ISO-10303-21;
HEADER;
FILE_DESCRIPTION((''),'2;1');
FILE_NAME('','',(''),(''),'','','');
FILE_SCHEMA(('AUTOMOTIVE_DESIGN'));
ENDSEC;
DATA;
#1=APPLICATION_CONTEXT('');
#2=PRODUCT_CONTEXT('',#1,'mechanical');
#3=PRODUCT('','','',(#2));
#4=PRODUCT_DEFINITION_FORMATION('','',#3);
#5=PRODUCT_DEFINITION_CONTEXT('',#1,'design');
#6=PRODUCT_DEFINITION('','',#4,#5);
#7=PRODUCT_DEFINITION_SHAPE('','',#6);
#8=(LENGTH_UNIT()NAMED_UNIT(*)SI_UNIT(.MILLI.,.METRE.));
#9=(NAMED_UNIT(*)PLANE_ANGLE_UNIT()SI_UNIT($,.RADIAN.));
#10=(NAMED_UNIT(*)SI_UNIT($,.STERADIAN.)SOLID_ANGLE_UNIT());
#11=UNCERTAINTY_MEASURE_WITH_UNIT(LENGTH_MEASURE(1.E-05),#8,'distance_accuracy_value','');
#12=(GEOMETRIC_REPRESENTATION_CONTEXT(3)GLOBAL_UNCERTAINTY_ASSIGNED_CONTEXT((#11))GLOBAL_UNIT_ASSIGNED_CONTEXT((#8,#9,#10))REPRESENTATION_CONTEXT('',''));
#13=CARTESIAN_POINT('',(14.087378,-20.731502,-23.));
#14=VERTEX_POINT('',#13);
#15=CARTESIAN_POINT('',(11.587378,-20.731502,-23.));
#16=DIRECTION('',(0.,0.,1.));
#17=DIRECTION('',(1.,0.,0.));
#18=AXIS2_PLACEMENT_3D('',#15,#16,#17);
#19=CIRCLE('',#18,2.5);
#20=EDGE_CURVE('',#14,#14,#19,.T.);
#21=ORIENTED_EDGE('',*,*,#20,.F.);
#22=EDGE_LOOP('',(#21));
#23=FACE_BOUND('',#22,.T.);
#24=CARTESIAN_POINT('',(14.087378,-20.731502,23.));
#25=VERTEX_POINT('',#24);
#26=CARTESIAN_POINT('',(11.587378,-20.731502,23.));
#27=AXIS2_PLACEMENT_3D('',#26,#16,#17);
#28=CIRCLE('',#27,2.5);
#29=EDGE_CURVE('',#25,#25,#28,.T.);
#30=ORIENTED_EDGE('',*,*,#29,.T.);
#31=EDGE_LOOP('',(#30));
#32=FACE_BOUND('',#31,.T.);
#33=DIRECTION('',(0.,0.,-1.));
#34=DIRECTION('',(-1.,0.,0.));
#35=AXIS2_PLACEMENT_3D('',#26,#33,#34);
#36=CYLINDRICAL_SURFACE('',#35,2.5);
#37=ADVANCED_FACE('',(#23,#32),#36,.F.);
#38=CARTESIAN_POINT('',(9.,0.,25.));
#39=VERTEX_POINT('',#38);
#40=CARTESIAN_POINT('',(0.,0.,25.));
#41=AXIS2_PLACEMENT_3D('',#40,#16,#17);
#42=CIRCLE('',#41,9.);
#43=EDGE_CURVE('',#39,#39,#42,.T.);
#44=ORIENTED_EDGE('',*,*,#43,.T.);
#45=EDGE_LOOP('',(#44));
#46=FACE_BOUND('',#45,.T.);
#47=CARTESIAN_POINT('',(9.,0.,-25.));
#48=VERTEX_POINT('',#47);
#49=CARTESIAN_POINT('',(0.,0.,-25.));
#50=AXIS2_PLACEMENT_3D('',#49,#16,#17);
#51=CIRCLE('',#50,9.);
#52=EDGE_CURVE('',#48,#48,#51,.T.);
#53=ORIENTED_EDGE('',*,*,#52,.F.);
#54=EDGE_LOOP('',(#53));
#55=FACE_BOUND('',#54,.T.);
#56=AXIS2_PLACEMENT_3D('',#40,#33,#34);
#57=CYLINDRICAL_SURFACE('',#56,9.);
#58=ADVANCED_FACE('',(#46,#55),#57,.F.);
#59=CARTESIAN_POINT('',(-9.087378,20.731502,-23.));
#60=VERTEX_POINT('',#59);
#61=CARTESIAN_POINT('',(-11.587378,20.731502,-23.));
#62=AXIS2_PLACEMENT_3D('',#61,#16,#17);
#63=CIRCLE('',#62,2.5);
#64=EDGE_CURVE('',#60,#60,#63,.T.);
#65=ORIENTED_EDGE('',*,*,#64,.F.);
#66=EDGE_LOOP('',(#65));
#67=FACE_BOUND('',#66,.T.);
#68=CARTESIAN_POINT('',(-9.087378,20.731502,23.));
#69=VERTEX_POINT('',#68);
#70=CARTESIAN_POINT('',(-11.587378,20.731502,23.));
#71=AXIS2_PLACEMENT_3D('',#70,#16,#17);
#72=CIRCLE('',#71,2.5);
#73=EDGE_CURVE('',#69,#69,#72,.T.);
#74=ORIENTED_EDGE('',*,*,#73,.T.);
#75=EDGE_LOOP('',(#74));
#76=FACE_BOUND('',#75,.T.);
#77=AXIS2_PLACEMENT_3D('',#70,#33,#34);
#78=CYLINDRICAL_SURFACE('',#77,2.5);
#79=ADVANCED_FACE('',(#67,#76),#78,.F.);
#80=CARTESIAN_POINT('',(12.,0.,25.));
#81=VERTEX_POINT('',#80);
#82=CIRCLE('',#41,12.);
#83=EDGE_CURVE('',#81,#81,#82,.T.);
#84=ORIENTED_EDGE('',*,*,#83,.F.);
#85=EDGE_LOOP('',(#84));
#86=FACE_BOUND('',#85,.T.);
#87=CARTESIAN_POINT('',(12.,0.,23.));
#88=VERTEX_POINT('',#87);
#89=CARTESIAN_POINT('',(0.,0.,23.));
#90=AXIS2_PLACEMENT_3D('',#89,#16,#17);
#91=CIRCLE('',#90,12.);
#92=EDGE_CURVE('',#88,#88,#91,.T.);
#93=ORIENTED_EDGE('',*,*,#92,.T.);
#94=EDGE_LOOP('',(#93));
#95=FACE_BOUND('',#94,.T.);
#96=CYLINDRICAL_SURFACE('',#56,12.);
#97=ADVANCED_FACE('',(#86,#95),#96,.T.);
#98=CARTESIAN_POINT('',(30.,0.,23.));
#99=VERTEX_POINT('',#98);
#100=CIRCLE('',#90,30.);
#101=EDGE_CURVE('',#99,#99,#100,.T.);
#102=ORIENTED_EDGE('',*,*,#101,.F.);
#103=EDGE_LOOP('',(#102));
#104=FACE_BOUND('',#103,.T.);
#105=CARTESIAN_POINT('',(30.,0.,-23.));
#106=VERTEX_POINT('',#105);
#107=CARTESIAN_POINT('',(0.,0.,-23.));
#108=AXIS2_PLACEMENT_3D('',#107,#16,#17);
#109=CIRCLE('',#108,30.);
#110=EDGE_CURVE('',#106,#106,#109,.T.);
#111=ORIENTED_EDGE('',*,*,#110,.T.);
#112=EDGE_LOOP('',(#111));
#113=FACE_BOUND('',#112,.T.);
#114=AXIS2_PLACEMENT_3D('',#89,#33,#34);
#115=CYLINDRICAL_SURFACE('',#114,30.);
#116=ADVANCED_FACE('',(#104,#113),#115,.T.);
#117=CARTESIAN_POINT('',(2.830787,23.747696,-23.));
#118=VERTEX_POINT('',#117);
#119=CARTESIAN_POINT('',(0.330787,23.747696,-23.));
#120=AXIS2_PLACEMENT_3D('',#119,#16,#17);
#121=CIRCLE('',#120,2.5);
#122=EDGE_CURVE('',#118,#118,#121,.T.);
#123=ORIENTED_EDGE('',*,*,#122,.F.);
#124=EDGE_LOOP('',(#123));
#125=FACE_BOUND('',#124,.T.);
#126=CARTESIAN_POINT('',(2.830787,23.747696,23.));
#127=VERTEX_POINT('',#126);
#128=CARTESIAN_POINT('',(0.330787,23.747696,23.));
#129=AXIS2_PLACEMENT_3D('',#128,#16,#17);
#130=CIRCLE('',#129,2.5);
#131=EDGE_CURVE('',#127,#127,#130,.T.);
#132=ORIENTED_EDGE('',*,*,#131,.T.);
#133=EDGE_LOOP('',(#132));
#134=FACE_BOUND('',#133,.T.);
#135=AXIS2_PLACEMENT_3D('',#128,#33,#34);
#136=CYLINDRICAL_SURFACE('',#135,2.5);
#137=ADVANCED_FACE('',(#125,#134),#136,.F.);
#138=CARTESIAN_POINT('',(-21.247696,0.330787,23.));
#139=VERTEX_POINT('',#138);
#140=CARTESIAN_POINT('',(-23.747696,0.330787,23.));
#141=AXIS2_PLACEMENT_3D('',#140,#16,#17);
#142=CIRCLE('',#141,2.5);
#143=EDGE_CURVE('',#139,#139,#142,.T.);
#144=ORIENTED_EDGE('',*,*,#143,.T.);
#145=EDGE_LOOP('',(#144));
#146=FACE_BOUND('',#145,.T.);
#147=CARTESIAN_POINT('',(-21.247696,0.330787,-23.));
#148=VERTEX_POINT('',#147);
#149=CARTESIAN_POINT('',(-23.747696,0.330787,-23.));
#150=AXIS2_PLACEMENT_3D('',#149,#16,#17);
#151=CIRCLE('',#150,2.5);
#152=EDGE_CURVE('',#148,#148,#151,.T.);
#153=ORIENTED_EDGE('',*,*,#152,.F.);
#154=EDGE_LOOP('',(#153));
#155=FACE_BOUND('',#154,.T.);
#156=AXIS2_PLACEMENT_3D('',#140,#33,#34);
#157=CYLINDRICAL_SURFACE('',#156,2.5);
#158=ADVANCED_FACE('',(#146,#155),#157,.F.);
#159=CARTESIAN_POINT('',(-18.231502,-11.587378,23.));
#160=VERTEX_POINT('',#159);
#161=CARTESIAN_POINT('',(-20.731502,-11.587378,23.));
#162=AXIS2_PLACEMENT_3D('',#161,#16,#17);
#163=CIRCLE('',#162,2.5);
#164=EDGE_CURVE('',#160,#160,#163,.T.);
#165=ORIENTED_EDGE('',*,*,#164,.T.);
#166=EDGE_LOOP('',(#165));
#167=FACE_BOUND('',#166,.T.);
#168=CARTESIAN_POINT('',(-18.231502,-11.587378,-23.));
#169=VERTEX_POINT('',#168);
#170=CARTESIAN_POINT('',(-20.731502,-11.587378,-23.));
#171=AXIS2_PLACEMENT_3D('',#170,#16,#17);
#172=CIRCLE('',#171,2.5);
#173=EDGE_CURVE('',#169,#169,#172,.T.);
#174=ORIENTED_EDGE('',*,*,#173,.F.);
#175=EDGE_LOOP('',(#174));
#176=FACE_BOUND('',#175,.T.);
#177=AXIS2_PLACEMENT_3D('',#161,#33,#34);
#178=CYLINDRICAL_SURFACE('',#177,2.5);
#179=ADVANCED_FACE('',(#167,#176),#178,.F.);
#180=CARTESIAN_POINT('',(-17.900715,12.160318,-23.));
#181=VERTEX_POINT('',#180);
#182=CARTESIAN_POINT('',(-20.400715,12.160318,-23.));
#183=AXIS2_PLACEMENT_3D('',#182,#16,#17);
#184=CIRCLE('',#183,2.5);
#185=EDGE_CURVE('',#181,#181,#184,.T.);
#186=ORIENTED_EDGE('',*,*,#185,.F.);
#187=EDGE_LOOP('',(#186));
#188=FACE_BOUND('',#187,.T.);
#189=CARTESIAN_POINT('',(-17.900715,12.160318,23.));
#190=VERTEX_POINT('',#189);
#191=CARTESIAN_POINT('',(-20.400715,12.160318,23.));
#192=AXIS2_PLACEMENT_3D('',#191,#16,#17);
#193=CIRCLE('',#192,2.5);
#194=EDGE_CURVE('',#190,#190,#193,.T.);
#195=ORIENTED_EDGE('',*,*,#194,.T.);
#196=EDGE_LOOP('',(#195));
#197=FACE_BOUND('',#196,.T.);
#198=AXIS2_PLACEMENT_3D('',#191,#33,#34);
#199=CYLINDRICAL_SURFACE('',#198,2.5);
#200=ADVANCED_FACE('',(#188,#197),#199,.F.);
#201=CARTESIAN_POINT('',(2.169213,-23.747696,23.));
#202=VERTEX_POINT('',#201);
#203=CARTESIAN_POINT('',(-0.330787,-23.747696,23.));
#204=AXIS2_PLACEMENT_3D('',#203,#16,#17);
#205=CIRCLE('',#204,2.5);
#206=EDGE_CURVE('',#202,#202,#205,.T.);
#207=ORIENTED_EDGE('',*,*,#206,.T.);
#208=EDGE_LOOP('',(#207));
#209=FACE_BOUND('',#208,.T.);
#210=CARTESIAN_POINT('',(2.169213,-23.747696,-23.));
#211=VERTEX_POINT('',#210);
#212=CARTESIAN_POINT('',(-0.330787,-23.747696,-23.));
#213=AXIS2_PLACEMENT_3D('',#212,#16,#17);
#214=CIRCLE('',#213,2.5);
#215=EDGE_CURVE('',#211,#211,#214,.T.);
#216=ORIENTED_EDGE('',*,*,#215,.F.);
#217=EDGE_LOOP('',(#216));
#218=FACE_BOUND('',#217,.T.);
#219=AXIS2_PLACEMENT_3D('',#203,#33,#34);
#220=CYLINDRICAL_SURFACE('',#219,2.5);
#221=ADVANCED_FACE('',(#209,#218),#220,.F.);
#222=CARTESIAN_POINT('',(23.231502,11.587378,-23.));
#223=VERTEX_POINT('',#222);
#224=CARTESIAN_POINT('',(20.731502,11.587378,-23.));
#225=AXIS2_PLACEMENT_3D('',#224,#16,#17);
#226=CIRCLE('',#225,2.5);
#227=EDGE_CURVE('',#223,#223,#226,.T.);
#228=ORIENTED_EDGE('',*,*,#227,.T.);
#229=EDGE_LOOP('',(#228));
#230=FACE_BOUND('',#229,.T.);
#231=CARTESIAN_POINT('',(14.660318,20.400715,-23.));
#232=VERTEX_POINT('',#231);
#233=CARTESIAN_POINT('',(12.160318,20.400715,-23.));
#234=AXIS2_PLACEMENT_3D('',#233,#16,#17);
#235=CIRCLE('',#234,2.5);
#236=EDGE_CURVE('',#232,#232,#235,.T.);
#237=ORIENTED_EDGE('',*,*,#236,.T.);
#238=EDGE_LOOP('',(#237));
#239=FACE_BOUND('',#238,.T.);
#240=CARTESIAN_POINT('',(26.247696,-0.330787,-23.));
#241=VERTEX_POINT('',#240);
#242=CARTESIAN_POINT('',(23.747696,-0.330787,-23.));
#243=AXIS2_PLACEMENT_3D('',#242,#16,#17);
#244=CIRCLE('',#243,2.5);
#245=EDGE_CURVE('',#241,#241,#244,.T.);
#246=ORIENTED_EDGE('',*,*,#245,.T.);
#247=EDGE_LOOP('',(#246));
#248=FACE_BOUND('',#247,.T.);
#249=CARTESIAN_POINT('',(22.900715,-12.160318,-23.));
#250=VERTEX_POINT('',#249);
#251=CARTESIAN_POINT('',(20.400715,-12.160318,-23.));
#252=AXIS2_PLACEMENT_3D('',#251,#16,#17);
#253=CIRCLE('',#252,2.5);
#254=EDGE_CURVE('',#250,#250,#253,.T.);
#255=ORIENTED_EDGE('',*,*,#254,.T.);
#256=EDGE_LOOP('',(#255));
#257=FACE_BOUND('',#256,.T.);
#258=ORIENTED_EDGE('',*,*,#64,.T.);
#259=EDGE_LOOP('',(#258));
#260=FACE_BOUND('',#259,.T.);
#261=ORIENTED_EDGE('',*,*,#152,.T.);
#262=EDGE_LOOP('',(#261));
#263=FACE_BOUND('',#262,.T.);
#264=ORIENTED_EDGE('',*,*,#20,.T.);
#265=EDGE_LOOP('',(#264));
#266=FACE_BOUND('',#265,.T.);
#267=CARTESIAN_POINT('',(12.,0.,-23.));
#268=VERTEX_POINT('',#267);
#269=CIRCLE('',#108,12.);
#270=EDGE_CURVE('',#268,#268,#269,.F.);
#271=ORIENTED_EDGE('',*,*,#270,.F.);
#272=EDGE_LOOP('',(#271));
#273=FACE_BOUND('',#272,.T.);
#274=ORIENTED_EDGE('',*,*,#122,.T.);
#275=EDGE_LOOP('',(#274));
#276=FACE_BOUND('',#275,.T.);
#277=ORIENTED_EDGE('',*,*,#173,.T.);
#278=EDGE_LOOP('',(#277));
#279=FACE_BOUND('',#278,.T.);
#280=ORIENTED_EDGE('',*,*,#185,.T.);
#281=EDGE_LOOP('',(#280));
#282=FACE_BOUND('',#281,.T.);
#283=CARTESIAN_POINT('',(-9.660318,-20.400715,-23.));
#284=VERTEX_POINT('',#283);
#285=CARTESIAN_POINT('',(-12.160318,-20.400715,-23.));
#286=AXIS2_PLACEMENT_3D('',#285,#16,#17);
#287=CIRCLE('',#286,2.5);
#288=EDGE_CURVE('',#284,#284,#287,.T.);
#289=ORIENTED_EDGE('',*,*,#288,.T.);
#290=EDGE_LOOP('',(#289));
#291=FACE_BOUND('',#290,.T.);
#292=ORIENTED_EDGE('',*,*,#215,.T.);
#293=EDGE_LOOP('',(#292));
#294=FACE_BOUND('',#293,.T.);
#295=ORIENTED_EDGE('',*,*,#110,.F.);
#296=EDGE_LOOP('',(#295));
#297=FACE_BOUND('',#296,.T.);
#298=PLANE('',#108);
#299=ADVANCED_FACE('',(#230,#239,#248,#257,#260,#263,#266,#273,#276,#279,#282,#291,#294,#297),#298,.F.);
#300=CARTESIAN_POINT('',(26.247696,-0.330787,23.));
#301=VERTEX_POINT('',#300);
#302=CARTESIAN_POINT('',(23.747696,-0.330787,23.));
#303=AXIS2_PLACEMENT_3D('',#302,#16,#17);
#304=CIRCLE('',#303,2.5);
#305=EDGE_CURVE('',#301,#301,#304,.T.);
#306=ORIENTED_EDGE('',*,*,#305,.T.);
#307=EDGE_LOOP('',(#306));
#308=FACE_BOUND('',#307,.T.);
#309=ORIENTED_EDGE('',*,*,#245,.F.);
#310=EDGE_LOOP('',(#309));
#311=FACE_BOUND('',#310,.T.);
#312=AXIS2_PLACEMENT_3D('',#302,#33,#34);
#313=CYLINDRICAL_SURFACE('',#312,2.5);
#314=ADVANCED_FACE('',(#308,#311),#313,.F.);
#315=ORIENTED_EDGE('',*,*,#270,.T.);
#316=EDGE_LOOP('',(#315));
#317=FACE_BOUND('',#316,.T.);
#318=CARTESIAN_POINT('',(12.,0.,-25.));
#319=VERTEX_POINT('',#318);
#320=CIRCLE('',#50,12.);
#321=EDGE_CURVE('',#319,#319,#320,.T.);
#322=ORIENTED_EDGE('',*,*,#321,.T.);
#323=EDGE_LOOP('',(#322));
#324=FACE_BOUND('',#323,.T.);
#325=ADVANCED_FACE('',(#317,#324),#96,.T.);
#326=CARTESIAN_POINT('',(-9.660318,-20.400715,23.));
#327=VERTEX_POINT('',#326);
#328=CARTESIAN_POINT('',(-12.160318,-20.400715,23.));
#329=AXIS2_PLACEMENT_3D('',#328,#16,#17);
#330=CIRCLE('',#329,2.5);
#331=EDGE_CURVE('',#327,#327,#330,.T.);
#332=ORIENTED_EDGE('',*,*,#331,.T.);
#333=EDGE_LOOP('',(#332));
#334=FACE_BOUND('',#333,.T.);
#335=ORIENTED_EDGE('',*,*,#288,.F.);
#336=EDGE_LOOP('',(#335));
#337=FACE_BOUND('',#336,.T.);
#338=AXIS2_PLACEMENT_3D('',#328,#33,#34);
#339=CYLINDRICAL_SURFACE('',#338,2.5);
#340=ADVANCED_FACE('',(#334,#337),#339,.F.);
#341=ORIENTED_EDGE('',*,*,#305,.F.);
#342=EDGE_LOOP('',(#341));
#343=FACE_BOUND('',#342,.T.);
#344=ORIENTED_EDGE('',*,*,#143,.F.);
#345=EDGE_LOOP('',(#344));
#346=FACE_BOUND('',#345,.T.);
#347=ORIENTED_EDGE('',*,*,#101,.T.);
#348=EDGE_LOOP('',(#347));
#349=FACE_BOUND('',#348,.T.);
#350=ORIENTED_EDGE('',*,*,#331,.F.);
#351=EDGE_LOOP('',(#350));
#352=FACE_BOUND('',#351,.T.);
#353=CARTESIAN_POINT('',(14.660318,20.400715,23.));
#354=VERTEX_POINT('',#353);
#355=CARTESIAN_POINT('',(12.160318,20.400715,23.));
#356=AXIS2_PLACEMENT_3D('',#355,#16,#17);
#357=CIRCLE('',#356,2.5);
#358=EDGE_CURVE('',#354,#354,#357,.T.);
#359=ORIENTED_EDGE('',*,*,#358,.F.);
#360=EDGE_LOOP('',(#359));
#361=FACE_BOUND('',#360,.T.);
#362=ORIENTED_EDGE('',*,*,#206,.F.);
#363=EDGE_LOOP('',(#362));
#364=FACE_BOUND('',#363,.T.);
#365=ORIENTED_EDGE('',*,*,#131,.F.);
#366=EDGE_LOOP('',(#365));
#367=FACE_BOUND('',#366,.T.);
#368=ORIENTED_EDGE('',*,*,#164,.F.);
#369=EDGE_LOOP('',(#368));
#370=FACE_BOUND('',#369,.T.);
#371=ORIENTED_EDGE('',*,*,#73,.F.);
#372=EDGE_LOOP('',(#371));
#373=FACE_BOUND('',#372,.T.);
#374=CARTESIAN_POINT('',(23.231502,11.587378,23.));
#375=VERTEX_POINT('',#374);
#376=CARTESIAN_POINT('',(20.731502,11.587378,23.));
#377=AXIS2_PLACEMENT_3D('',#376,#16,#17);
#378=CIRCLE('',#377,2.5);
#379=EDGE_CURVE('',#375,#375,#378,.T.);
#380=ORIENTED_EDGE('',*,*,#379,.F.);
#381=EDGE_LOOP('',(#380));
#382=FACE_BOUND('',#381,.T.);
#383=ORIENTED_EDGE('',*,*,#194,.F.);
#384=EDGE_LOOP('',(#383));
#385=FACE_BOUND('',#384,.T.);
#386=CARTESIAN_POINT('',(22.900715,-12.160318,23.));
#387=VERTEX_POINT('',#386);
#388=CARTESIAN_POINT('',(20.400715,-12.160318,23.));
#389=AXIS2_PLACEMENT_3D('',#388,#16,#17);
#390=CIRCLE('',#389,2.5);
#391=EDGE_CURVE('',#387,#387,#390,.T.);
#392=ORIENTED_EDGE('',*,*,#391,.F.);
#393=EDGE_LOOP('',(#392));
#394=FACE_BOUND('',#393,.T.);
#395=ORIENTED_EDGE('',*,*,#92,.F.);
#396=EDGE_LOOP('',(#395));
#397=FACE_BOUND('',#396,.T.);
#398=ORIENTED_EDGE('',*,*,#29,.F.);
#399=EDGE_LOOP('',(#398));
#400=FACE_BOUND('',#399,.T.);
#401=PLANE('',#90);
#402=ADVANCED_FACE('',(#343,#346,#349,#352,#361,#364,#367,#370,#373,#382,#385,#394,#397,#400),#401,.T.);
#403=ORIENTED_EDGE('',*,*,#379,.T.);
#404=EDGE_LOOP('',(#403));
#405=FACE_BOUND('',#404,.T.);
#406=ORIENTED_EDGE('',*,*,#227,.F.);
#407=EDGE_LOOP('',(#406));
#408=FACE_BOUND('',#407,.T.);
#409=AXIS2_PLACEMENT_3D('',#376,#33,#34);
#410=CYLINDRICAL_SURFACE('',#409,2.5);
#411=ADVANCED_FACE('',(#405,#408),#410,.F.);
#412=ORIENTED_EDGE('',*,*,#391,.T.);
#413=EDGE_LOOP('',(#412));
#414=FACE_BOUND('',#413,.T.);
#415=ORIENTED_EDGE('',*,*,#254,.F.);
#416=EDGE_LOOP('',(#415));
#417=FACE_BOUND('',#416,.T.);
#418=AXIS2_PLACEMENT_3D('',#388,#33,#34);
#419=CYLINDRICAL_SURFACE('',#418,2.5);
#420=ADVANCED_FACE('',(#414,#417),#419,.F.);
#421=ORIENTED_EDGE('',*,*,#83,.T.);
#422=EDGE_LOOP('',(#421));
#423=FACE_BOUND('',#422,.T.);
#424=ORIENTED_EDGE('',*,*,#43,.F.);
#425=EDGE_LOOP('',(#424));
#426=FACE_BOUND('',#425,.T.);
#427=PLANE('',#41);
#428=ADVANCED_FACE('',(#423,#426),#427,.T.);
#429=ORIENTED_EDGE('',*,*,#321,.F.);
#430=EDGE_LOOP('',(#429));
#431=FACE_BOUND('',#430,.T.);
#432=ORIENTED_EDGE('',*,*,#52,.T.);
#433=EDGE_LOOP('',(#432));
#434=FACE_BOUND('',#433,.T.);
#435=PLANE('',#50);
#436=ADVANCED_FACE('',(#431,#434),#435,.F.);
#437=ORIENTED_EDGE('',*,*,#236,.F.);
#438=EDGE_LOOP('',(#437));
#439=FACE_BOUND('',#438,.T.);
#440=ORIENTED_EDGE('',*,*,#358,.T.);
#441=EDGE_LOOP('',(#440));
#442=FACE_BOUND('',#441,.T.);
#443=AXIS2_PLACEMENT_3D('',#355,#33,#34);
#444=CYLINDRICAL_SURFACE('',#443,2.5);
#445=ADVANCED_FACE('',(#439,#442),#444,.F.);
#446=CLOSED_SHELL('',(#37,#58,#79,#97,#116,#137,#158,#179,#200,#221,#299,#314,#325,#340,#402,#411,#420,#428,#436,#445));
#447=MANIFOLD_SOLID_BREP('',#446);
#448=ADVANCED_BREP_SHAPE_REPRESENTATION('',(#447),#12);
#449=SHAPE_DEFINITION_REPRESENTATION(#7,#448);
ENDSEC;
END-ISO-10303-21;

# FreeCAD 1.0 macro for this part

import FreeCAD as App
import Part
import Sketcher
Q = App.Units.Quantity

doc = App.newDocument("Part")
body = doc.addObject("PartDesign::Body", "Body")

# Sketch on XY plane
sketch1 = body.newObject("Sketcher::SketchObject", "Sketch")
sketch1.AttachmentSupport = (doc.getObject("XY_Plane"), [""])
sketch1.MapMode = "FlatFace"
sketch1.addGeometry([
    Part.Circle(App.Vector(0, 0, 0), App.Vector(0, 0, 1), 30),  # 0
    Part.Circle(App.Vector(-12.160318, -20.400715, 0), App.Vector(0, 0, 1), 2.5),  # 1
    Part.Circle(App.Vector(-0.330787, -23.747696, 0), App.Vector(0, 0, 1), 2.5),  # 2
    Part.Circle(App.Vector(-20.731502, -11.587378, 0), App.Vector(0, 0, 1), 2.5),  # 3
    Part.Circle(App.Vector(11.587378, -20.731502, 0), App.Vector(0, 0, 1), 2.5),  # 4
    Part.Circle(App.Vector(20.400715, -12.160318, 0), App.Vector(0, 0, 1), 2.5),  # 5
    Part.Circle(App.Vector(23.747696, -0.330787, 0), App.Vector(0, 0, 1), 2.5),  # 6
    Part.Circle(App.Vector(-23.747696, 0.330787, 0), App.Vector(0, 0, 1), 2.5),  # 7
    Part.Circle(App.Vector(-20.400715, 12.160318, 0), App.Vector(0, 0, 1), 2.5),  # 8
    Part.Circle(App.Vector(-11.587378, 20.731502, 0), App.Vector(0, 0, 1), 2.5),  # 9
    Part.Circle(App.Vector(0, 0, 0), App.Vector(0, 0, 1), 12),  # 10
    Part.Circle(App.Vector(20.731502, 11.587378, 0), App.Vector(0, 0, 1), 2.5),  # 11
    Part.Circle(App.Vector(0.330787, 23.747696, 0), App.Vector(0, 0, 1), 2.5),  # 12
    Part.Circle(App.Vector(12.160318, 20.400715, 0), App.Vector(0, 0, 1), 2.5),  # 13
], False)
sketch1.addConstraint([
    Sketcher.Constraint("Coincident", 0, 3, -1, 1),
    Sketcher.Constraint("Coincident", 10, 3, -1, 1),
    Sketcher.Constraint("Equal", 1, 2),
    Sketcher.Constraint("Equal", 2, 3),
    Sketcher.Constraint("Equal", 3, 4),
    Sketcher.Constraint("Equal", 4, 5),
    Sketcher.Constraint("Equal", 5, 6),
    Sketcher.Constraint("Equal", 6, 7),
    Sketcher.Constraint("Equal", 7, 8),
    Sketcher.Constraint("Equal", 8, 9),
    Sketcher.Constraint("Equal", 9, 11),
    Sketcher.Constraint("Equal", 11, 12),
    Sketcher.Constraint("Equal", 12, 13),
    Sketcher.Constraint("Symmetric", 6, 3, 7, 3, -1, 1),
    Sketcher.Constraint("Symmetric", 5, 3, 8, 3, -1, 1),
    Sketcher.Constraint("Symmetric", 4, 3, 9, 3, -1, 1),
    Sketcher.Constraint("Symmetric", 3, 3, 11, 3, -1, 1),
    Sketcher.Constraint("Symmetric", 2, 3, 12, 3, -1, 1),
    Sketcher.Constraint("Symmetric", 1, 3, 13, 3, -1, 1),
    Sketcher.Constraint("Diameter", 0, Q("60 mm")),
    Sketcher.Constraint("Diameter", 1, Q("5 mm")),
    Sketcher.Constraint("Diameter", 10, Q("24 mm")),
    Sketcher.Constraint("DistanceX", 3, 3, -1, 1, Q("20.731502 mm")),
    Sketcher.Constraint("DistanceY", 4, 3, -1, 1, Q("20.731502 mm")),
    Sketcher.Constraint("DistanceX", 2, 3, 5, 3, Q("20.731502 mm")),
    Sketcher.Constraint("DistanceY", 1, 3, 7, 3, Q("20.731502 mm")),
    Sketcher.Constraint("DistanceX", 1, 3, -1, 1, Q("12.160318 mm")),
    Sketcher.Constraint("DistanceY", 3, 3, -1, 1, Q("11.587378 mm")),
    Sketcher.Constraint("DistanceX", -1, 1, 4, 3, Q("11.587378 mm")),
    Sketcher.Constraint("DistanceY", 5, 3, -1, 1, Q("12.160318 mm")),
    Sketcher.Constraint("DistanceX", 1, 3, 2, 3, Q("11.829531 mm")),
    Sketcher.Constraint("DistanceY", 2, 3, 1, 3, Q("3.346982 mm")),
    Sketcher.Constraint("DistanceY", 2, 3, 3, 3, Q("12.160318 mm")),
    Sketcher.Constraint("DistanceX", 5, 3, 6, 3, Q("3.346982 mm")),
])
pad1 = body.newObject("PartDesign::Pad", "Pad")
pad1.Profile = sketch1
pad1.Length = 46
pad1.Midplane = True

# Sketch on XY plane
sketch2 = body.newObject("Sketcher::SketchObject", "Sketch001")
sketch2.AttachmentSupport = (doc.getObject("XY_Plane"), [""])
sketch2.MapMode = "FlatFace"
sketch2.addGeometry([
    Part.Circle(App.Vector(0, 0, 0), App.Vector(0, 0, 1), 12),
    Part.Circle(App.Vector(0, 0, 0), App.Vector(0, 0, 1), 9),
], False)
sketch2.addConstraint([
    Sketcher.Constraint("Coincident", 0, 3, -1, 1),
    Sketcher.Constraint("Coincident", 1, 3, -1, 1),
    Sketcher.Constraint("Diameter", 0, Q("24 mm")),
    Sketcher.Constraint("Diameter", 1, Q("18 mm")),
])
pad2 = body.newObject("PartDesign::Pad", "Pad001")
pad2.Profile = sketch2
pad2.Length = 50
pad2.Midplane = True

doc.recompute()
